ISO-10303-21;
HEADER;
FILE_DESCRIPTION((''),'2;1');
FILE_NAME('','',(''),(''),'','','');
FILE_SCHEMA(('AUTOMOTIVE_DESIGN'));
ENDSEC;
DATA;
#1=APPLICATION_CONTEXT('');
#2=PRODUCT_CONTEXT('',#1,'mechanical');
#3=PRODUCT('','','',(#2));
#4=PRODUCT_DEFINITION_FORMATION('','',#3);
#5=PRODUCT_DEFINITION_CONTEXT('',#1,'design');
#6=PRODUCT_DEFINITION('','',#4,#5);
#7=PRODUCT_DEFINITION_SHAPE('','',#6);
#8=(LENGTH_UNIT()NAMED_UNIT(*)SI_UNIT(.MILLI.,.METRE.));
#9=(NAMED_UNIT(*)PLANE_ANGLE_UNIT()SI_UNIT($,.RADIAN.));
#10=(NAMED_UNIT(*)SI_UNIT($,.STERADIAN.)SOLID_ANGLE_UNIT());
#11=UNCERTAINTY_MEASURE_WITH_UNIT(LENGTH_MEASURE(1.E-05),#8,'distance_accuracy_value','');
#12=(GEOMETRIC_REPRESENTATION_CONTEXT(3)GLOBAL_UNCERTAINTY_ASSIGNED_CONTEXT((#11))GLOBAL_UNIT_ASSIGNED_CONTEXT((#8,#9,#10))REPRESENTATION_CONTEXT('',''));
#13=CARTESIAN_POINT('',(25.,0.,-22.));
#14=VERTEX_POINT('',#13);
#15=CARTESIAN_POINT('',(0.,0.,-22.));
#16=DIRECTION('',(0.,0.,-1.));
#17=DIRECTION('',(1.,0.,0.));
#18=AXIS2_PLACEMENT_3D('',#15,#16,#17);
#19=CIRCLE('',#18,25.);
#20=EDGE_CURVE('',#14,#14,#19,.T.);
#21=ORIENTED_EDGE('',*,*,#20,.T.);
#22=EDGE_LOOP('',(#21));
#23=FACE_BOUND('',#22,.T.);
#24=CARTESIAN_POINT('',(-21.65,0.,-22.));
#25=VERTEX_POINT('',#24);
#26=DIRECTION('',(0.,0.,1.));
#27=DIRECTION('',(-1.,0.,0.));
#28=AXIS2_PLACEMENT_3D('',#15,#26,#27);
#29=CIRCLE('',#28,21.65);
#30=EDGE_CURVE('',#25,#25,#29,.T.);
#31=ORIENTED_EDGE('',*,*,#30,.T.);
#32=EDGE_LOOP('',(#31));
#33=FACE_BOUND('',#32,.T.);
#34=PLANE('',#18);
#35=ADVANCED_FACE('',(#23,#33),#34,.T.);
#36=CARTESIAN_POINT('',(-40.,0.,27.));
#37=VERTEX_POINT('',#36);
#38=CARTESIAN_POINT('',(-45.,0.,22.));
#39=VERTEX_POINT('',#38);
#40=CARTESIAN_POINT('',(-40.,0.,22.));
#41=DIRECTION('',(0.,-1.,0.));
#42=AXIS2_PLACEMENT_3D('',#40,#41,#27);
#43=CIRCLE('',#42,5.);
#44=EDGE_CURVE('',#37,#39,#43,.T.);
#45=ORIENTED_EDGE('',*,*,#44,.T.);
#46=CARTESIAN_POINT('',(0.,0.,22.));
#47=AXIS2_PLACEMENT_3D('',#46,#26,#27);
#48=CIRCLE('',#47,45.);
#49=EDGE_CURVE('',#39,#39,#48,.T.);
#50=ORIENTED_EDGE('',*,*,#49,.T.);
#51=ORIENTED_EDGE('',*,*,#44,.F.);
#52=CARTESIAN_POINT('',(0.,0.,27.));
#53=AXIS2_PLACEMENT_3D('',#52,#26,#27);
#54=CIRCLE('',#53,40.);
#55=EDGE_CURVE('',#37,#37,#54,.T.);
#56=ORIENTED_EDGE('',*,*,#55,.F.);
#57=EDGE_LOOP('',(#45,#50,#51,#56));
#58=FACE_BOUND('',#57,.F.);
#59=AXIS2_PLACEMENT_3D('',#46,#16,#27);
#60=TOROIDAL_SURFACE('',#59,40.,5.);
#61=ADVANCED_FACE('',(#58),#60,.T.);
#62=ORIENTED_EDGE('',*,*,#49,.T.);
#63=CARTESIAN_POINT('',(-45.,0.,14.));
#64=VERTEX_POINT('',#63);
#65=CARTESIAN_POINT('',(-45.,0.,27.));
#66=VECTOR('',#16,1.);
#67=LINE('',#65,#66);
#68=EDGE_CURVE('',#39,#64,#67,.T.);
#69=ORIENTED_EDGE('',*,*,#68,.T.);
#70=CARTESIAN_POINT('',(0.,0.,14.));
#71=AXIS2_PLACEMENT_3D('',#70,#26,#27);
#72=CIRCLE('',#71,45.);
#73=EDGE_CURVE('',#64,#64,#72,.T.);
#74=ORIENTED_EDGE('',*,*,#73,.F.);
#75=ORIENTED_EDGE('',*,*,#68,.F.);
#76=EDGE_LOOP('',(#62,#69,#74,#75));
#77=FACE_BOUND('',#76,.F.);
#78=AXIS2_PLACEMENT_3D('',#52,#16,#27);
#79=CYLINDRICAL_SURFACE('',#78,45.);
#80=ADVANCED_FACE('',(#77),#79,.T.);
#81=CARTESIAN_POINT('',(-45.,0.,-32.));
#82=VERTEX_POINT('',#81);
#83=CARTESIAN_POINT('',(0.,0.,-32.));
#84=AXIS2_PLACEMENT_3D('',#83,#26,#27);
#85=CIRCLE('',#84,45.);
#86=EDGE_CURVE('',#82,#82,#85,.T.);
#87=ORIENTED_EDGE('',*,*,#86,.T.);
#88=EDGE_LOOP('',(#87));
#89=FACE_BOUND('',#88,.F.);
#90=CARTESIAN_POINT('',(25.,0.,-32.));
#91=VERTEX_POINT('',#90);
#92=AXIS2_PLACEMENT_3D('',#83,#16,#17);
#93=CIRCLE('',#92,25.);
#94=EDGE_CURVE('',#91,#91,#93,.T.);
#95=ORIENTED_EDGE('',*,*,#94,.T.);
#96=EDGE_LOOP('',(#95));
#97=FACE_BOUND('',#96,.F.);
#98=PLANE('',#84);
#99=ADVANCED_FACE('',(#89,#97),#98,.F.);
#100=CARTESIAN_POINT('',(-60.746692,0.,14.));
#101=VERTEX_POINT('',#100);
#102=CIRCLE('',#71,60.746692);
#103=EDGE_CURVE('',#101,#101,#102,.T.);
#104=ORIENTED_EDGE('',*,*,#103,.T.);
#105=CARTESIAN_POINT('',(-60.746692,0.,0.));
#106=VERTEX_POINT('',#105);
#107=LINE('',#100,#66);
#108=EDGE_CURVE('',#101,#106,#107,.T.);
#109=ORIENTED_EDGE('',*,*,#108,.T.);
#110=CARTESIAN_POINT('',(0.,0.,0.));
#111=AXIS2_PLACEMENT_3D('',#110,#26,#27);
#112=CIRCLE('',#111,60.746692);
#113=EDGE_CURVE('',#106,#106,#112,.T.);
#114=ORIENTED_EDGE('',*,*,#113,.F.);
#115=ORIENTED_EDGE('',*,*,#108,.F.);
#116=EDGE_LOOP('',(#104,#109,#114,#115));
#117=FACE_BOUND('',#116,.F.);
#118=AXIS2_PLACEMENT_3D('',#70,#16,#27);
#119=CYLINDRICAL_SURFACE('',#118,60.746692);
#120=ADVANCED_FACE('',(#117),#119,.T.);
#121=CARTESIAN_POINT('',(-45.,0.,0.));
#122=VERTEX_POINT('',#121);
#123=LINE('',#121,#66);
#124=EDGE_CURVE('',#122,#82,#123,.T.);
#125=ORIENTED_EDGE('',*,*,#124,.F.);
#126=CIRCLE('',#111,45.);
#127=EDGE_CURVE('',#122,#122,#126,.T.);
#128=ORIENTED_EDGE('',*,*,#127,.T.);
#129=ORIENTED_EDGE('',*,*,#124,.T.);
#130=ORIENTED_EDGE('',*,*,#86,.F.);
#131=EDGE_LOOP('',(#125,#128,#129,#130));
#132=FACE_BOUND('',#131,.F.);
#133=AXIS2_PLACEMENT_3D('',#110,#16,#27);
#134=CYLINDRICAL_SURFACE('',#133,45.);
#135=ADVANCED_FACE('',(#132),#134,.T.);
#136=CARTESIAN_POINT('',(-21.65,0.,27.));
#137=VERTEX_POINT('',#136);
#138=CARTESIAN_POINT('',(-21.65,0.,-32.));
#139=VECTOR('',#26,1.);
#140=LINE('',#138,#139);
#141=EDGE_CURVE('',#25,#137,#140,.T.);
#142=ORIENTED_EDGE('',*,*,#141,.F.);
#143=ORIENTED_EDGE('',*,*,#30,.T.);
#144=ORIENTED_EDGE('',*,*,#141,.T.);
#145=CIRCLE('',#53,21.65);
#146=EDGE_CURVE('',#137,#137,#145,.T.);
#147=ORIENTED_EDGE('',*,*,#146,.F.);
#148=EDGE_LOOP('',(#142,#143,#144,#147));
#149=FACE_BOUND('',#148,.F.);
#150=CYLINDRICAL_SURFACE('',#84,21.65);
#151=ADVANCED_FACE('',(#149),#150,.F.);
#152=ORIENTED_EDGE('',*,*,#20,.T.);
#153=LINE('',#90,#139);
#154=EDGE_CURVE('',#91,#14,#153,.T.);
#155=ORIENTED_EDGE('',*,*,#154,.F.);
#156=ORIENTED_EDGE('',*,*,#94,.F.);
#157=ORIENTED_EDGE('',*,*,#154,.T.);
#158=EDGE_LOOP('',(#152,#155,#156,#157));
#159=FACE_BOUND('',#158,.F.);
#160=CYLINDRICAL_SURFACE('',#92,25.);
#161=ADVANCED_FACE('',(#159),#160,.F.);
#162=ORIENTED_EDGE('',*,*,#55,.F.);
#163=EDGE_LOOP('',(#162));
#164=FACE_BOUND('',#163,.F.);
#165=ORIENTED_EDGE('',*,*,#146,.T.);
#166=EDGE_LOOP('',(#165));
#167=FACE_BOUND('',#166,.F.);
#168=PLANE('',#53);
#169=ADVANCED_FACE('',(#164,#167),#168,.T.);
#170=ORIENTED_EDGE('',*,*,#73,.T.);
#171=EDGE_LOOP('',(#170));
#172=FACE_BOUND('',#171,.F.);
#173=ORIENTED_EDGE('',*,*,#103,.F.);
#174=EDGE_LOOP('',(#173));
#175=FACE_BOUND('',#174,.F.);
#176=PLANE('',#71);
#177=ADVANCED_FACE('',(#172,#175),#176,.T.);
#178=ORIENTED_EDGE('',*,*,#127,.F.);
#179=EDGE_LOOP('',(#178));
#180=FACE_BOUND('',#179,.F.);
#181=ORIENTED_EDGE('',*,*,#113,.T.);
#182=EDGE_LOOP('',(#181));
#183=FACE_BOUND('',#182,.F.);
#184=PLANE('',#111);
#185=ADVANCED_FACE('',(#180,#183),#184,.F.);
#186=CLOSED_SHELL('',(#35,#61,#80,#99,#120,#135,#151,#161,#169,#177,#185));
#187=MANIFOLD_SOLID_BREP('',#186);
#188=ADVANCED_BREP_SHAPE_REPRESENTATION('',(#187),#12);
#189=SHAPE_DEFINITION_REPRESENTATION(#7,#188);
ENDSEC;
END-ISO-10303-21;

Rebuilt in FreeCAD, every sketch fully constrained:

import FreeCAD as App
import Part
import Sketcher
from FreeCAD import Vector


def edges_at(feature, points):
    """Names of the edges that pass closest to the given points."""
    edges = feature.Shape.Edges
    near = lambda p: min(range(len(edges)), key=lambda i: edges[i].distToShape(Part.Vertex(*p))[0])
    return sorted({f"Edge{near(p) + 1}" for p in points})

doc = App.newDocument("Part")
body = doc.addObject("PartDesign::Body", "Body")

# Sketch on XZ plane
sketch1 = doc.addObject("Sketcher::SketchObject", "Sketch")
body.addObject(sketch1)
sketch1.AttachmentSupport = (doc.XZ_Plane, [""])
sketch1.MapMode = "FlatFace"
sketch1.addGeometry([
    Part.LineSegment(Vector(-61, 14, 0), Vector(-61, 0, 0)),  # 0
    Part.LineSegment(Vector(-61, 0, 0), Vector(-45, 0, 0)),  # 1
    Part.LineSegment(Vector(-45, 0, 0), Vector(-45, -32, 0)),  # 2
    Part.LineSegment(Vector(-45, -32, 0), Vector(-22, -32, 0)),  # 3
    Part.LineSegment(Vector(-22, -32, 0), Vector(-22, 27, 0)),  # 4
    Part.LineSegment(Vector(-22, 27, 0), Vector(-45, 27, 0)),  # 5
    Part.LineSegment(Vector(-45, 27, 0), Vector(-45, 14, 0)),  # 6
    Part.LineSegment(Vector(-45, 14, 0), Vector(-61, 14, 0)),  # 7
], False)
sketch1.addConstraint([
    Sketcher.Constraint("Coincident", 0, 2, 1, 1),
    Sketcher.Constraint("Coincident", 1, 2, 2, 1),
    Sketcher.Constraint("Coincident", 2, 2, 3, 1),
    Sketcher.Constraint("Coincident", 3, 2, 4, 1),
    Sketcher.Constraint("Coincident", 4, 2, 5, 1),
    Sketcher.Constraint("Coincident", 5, 2, 6, 1),
    Sketcher.Constraint("Coincident", 6, 2, 7, 1),
    Sketcher.Constraint("Coincident", 7, 2, 0, 1),
    Sketcher.Constraint("Vertical", 0),
    Sketcher.Constraint("Horizontal", 1),
    Sketcher.Constraint("Vertical", 2),
    Sketcher.Constraint("Horizontal", 3),
    Sketcher.Constraint("Vertical", 4),
    Sketcher.Constraint("Horizontal", 5),
    Sketcher.Constraint("Vertical", 6),
    Sketcher.Constraint("Horizontal", 7),
    Sketcher.Constraint("PointOnObject", 0, 2, -1),
    Sketcher.Constraint("Vertical", 2, 2, 5, 2),
    Sketcher.Constraint("DistanceY", 0, 2, 0, 1, 14.0),
    Sketcher.Constraint("DistanceY", 2, 2, 2, 1, 32.0),
    Sketcher.Constraint("DistanceY", 4, 1, 4, 2, 59.0),
    Sketcher.Constraint("DistanceX", 1, 2, -1, 1, 45.0),
    Sketcher.Constraint("DistanceX", 3, 1, 3, 2, 23.35),
    Sketcher.Constraint("DistanceX", 1, 1, 1, 2, 15.746692),
])
revolution = doc.addObject("PartDesign::Revolution", "Revolution")
body.addObject(revolution)
revolution.Profile = sketch1
revolution.ReferenceAxis = (sketch1, ["V_Axis"])
revolution.Angle = 360
doc.recompute()

fillet = doc.addObject("PartDesign::Fillet", "Fillet")
body.addObject(fillet)
fillet.Base = (revolution, edges_at(revolution, [(45, 0, 27)]))
fillet.Radius = 5

# Sketch on XY plane
sketch2 = doc.addObject("Sketcher::SketchObject", "Sketch001")
body.addObject(sketch2)
sketch2.AttachmentSupport = (doc.XY_Plane, [""])
sketch2.MapMode = "FlatFace"
sketch2.AttachmentOffset = App.Placement(Vector(0, 0, -32), App.Rotation())
sketch2.addGeometry(Part.Circle(Vector(0, 0, 0), Vector(0, 0, 1), 25), False)
sketch2.addConstraint([
    Sketcher.Constraint("Coincident", 0, 3, -1, 1),
    Sketcher.Constraint("Diameter", 0, 50.0),
])
pocket1 = doc.addObject("PartDesign::Pocket", "Pocket")
body.addObject(pocket1)
pocket1.Profile = sketch2
pocket1.Length = 10
pocket1.Reversed = True

doc.recompute()
